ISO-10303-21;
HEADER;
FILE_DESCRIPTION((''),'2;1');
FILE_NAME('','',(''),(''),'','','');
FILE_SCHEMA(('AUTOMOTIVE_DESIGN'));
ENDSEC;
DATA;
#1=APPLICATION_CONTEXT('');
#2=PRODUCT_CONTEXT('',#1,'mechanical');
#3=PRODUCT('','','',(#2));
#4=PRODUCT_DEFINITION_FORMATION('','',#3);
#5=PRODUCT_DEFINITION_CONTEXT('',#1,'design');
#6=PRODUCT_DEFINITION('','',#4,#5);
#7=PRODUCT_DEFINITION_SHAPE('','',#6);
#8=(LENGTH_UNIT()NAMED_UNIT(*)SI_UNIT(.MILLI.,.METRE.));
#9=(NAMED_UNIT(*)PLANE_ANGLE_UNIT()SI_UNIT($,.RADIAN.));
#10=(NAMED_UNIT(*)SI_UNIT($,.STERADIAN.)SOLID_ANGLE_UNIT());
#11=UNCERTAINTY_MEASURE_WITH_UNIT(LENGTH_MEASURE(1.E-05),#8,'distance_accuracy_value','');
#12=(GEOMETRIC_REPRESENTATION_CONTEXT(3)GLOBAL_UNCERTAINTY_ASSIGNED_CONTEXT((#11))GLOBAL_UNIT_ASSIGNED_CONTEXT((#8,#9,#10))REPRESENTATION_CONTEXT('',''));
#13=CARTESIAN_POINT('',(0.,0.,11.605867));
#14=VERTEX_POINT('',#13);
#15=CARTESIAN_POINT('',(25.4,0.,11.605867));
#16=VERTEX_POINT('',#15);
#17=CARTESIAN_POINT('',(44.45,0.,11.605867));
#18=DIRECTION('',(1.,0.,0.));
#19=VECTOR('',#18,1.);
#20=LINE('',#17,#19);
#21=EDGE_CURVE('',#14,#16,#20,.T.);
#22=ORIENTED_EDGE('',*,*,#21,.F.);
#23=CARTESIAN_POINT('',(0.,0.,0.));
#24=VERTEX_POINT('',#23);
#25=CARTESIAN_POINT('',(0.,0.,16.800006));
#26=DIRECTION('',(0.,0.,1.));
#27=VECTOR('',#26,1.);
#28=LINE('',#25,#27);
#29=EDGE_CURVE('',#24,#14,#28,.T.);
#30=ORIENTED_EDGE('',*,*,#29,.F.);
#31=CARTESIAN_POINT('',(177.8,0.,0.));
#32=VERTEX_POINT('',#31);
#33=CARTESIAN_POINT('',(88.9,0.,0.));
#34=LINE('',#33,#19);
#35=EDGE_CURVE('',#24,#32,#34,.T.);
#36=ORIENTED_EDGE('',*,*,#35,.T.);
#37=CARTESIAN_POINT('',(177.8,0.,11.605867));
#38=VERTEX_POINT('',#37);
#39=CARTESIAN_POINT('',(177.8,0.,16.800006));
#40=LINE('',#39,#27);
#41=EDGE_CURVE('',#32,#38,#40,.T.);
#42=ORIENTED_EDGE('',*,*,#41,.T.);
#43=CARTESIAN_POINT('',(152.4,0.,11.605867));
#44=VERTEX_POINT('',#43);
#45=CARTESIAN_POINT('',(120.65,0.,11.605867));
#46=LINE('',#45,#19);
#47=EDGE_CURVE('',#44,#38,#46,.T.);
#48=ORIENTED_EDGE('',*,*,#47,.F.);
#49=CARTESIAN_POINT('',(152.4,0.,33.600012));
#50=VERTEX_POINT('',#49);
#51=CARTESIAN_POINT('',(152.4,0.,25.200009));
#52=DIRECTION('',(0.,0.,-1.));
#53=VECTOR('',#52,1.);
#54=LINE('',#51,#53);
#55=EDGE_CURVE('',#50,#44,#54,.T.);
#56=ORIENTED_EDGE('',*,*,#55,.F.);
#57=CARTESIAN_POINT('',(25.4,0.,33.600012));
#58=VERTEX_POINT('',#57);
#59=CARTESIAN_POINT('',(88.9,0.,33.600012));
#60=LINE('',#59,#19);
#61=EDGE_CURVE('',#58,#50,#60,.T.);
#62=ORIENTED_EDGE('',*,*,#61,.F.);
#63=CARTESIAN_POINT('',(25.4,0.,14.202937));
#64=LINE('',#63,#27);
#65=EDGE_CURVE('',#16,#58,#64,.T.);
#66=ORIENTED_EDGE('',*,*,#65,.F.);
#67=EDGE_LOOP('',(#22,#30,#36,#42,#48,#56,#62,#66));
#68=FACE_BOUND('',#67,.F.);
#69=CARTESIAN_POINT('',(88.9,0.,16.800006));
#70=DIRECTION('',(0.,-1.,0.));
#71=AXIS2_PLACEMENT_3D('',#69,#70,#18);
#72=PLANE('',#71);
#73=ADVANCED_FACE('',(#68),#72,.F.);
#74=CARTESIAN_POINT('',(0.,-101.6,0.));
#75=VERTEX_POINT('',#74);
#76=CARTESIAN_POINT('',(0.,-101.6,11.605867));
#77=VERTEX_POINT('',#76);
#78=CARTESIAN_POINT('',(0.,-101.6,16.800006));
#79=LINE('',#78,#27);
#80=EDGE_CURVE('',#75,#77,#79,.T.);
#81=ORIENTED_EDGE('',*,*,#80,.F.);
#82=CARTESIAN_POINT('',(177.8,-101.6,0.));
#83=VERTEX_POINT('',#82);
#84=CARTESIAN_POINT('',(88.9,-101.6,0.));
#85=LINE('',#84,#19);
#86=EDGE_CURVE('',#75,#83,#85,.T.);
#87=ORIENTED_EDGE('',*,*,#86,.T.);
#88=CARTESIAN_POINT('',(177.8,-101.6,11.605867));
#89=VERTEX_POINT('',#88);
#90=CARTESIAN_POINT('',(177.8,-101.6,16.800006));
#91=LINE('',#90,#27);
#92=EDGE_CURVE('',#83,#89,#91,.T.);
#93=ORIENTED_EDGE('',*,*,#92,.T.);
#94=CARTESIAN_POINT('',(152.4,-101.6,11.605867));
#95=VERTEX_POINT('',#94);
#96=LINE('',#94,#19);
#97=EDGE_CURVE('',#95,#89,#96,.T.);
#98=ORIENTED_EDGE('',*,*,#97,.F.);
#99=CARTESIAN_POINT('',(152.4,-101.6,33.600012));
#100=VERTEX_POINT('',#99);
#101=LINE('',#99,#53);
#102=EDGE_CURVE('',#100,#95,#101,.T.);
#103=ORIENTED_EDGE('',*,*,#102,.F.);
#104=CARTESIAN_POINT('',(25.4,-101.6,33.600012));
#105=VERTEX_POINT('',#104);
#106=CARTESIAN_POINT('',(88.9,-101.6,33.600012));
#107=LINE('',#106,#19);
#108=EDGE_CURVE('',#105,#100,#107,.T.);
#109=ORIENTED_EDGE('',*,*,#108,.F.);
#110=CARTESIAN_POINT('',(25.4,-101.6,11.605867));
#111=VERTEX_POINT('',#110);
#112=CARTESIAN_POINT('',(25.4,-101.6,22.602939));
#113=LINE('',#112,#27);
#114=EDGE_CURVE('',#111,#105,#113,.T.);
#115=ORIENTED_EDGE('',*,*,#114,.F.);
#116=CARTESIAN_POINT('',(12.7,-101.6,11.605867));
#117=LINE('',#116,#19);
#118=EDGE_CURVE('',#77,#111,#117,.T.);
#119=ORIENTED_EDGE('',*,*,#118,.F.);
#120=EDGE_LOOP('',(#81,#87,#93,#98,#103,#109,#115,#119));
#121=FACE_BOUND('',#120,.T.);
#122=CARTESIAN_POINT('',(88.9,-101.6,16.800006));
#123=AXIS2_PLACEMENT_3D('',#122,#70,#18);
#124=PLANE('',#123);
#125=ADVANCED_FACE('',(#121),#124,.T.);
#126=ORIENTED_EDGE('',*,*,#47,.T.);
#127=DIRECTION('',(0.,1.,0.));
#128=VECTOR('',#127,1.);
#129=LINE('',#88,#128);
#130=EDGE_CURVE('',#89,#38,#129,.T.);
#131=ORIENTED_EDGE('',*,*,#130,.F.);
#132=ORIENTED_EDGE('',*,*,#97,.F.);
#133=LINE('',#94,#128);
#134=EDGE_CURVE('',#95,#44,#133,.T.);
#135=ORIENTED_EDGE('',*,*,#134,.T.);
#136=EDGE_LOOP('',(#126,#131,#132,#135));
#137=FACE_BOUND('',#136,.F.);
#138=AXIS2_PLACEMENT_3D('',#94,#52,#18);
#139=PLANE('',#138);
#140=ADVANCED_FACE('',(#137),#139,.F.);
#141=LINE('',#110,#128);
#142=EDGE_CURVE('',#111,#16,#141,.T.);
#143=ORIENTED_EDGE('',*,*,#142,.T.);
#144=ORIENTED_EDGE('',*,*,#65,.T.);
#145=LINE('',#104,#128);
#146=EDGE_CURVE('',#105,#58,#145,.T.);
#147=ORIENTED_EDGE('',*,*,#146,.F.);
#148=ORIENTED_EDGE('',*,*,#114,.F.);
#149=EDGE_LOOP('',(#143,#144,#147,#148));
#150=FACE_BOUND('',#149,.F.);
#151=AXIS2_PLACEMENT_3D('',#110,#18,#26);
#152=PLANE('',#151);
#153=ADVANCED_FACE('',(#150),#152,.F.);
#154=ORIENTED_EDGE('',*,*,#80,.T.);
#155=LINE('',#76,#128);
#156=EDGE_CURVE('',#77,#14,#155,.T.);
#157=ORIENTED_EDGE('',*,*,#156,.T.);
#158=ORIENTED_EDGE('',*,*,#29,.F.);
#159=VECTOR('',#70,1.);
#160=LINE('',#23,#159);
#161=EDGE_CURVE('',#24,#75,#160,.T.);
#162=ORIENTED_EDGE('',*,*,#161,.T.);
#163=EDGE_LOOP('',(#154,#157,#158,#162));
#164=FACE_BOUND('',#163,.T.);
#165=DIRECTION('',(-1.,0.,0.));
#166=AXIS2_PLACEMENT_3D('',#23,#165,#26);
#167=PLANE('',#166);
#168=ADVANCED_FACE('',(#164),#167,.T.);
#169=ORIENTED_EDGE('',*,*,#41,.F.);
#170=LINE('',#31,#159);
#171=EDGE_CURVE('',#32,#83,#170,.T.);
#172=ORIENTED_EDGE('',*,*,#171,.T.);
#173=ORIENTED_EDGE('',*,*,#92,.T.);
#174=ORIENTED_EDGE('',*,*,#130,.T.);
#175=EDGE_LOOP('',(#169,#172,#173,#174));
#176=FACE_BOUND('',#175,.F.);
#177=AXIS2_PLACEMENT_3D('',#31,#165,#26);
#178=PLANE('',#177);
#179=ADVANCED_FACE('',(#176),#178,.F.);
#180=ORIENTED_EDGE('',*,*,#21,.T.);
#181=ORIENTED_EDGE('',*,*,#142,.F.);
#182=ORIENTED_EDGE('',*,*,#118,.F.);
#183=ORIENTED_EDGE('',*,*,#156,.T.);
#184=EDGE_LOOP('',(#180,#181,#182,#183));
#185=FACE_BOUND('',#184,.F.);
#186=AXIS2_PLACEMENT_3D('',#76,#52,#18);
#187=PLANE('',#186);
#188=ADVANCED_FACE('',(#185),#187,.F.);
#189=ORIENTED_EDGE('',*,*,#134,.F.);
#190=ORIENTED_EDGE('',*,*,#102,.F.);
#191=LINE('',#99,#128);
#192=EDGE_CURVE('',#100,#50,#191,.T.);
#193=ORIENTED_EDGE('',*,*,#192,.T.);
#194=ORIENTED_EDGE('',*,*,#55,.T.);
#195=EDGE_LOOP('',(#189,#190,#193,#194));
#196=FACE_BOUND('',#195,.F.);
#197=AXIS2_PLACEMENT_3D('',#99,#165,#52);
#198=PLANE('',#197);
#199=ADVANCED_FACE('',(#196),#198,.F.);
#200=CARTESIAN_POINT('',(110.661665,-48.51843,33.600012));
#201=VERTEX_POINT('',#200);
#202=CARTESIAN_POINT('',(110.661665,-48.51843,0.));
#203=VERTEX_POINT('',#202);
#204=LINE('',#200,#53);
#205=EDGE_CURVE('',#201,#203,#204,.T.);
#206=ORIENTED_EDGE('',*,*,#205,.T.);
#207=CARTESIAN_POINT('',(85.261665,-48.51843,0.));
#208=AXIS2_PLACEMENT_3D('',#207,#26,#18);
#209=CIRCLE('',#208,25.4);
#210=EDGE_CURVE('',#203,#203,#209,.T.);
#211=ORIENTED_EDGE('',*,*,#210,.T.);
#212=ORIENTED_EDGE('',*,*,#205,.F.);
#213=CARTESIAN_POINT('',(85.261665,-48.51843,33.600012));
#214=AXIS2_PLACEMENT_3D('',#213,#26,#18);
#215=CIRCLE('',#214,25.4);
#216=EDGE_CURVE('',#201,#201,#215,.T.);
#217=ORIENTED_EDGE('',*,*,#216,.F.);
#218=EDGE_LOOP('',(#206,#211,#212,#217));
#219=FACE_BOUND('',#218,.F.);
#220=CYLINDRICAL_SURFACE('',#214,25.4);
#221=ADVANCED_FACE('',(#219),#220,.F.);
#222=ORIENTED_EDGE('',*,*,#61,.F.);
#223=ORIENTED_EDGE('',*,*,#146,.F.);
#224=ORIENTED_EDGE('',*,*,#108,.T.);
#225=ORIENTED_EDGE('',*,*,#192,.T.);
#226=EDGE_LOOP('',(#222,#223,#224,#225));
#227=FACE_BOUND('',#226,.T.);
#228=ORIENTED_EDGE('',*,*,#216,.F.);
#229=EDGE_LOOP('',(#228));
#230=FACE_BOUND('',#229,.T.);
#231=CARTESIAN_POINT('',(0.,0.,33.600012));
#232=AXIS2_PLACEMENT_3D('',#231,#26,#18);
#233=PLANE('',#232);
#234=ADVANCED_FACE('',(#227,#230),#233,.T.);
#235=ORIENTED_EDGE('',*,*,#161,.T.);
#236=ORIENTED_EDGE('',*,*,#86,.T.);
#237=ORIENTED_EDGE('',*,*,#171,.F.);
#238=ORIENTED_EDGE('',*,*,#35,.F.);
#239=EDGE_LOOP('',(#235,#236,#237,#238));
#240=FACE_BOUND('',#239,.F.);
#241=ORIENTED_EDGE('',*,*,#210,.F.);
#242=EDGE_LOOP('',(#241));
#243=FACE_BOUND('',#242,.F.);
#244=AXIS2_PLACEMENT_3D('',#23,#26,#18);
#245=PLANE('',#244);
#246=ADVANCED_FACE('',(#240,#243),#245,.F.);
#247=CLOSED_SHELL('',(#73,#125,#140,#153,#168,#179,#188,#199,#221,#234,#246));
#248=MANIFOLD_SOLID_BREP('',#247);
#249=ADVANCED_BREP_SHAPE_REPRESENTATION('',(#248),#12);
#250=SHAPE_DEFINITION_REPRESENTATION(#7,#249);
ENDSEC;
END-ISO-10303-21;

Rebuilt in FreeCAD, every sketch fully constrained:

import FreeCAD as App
import Part
import Sketcher
Q = App.Units.Quantity


def add_polygon(sketch, points):
    """Adds a closed chain of lines whose ends are joined by coincident constraints."""
    first, n = sketch.GeometryCount, len(points)
    for a, b in zip(points, points[1:] + points[:1]):
        sketch.addGeometry(Part.LineSegment(App.Vector(*a, 0), App.Vector(*b, 0)), False)
    for i in range(n):
        sketch.addConstraint(Sketcher.Constraint("Coincident", first + i, 2, first + (i + 1) % n, 1))

doc = App.newDocument("Part")
body = doc.addObject("PartDesign::Body", "Body")

sketch1 = doc.addObject("Sketcher::SketchObject", "Sketch")
body.addObject(sketch1)
sketch1.AttachmentSupport = (doc.XZ_Plane, [""])
sketch1.MapMode = "FlatFace"
add_polygon(sketch1, [(0, 33.600012), (0, 0), (177.8, 0), (177.8, 33.600012)])
sketch1.addConstraint(Sketcher.Constraint("Vertical", 0))
sketch1.addConstraint(Sketcher.Constraint("Horizontal", 1))
sketch1.addConstraint(Sketcher.Constraint("Vertical", 2))
sketch1.addConstraint(Sketcher.Constraint("Horizontal", 3))
sketch1.addConstraint(Sketcher.Constraint("Coincident", 0, 2, -1, 1))
sketch1.addConstraint(Sketcher.Constraint("DistanceX", 1, 1, 1, 2, Q("7 in")))
sketch1.addConstraint(Sketcher.Constraint("DistanceY", 0, 2, 0, 1, Q("33.600012 mm")))
pad1 = doc.addObject("PartDesign::Pad", "Pad")
body.addObject(pad1)
pad1.Profile = sketch1
pad1.Length = Q("4 in")

sketch2 = doc.addObject("Sketcher::SketchObject", "Sketch001")
body.addObject(sketch2)
sketch2.AttachmentSupport = (doc.XY_Plane, [""])
sketch2.MapMode = "FlatFace"
sketch2.AttachmentOffset = App.Placement(App.Vector(0, 0, 33.600012), App.Rotation())
sketch2.addGeometry(Part.Circle(App.Vector(85.261665, -48.51843, 0), App.Vector(0, 0, 1), 25.4), False)
sketch2.addConstraint(Sketcher.Constraint("Diameter", 0, Q("2 in")))
sketch2.addConstraint(Sketcher.Constraint("DistanceY", 0, 3, -1, 1, Q("48.51843 mm")))
sketch2.addConstraint(Sketcher.Constraint("DistanceX", -1, 1, 0, 3, Q("85.261665 mm")))
pocket1 = doc.addObject("PartDesign::Pocket", "Pocket")
body.addObject(pocket1)
pocket1.Profile = sketch2
pocket1.Type = "ThroughAll"

sketch3 = doc.addObject("Sketcher::SketchObject", "Sketch002")
body.addObject(sketch3)
sketch3.AttachmentSupport = (doc.XZ_Plane, [""])
sketch3.MapMode = "FlatFace"
sketch3.AttachmentOffset = App.Placement(App.Vector(0, 0, 4 * 25.4), App.Rotation())
add_polygon(sketch3, [(177.8, 11.605867), (177.8, 33.600012), (152.4, 33.600012), (152.4, 11.605867)])
add_polygon(sketch3, [(0, 33.600012), (0, 11.605867), (25.4, 11.605867), (25.4, 33.600012)])
sketch3.addConstraint(Sketcher.Constraint("Vertical", 0))
sketch3.addConstraint(Sketcher.Constraint("Horizontal", 1))
sketch3.addConstraint(Sketcher.Constraint("Vertical", 2))
sketch3.addConstraint(Sketcher.Constraint("Horizontal", 3))
sketch3.addConstraint(Sketcher.Constraint("Vertical", 4))
sketch3.addConstraint(Sketcher.Constraint("Horizontal", 5))
sketch3.addConstraint(Sketcher.Constraint("Vertical", 6))
sketch3.addConstraint(Sketcher.Constraint("Horizontal", 7))
sketch3.addConstraint(Sketcher.Constraint("PointOnObject", 4, 2, -2))
sketch3.addConstraint(Sketcher.Constraint("Horizontal", 3, 2, 4, 2))
sketch3.addConstraint(Sketcher.Constraint("Horizontal", 1, 2, 6, 2))
sketch3.addConstraint(Sketcher.Constraint("Equal", 3, 5))
sketch3.addConstraint(Sketcher.Constraint("DistanceX", 1, 2, 1, 1, Q("1 in")))
sketch3.addConstraint(Sketcher.Constraint("DistanceX", -1, 1, 0, 2, Q("7 in")))
sketch3.addConstraint(Sketcher.Constraint("DistanceY", 0, 1, 0, 2, Q("21.994145 mm")))
sketch3.addConstraint(Sketcher.Constraint("DistanceY", -1, 1, 0, 2, Q("33.600012 mm")))
pocket2 = doc.addObject("PartDesign::Pocket", "Pocket001")
body.addObject(pocket2)
pocket2.Profile = sketch3
pocket2.Type = "ThroughAll"

doc.recompute()
